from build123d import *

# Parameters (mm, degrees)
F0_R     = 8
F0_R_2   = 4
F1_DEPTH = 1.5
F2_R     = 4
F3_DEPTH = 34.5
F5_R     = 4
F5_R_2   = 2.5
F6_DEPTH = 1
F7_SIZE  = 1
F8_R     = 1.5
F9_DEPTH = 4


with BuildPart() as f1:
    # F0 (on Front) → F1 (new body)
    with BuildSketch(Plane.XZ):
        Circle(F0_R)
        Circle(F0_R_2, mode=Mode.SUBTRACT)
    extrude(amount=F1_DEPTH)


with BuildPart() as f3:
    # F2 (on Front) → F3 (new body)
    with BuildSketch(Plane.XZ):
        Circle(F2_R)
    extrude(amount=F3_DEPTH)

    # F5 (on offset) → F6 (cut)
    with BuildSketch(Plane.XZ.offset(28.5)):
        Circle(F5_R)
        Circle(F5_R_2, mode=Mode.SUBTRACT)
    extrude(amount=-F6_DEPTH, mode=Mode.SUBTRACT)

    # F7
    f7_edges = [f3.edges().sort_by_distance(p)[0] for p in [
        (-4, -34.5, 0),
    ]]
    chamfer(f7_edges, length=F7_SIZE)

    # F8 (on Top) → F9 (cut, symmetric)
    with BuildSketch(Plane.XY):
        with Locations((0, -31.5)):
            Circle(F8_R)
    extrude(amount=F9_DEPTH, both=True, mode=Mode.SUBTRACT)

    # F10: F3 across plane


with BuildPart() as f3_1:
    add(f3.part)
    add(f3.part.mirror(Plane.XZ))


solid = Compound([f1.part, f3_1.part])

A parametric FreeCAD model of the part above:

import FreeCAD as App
import Part
import Sketcher
from FreeCAD import Vector


def edges_at(feature, points):
    """Names of the edges that pass closest to the given points."""
    edges = feature.Shape.Edges
    near = lambda p: min(range(len(edges)), key=lambda i: edges[i].distToShape(Part.Vertex(*p))[0])
    return sorted({f"Edge{near(p) + 1}" for p in points})

doc = App.newDocument("Part")
body = doc.addObject("PartDesign::Body", "Body")

# Sketch on XZ plane
sketch1 = body.newObject("Sketcher::SketchObject", "Sketch")
sketch1.AttachmentSupport = (doc.getObject("XZ_Plane"), [""])
sketch1.MapMode = "FlatFace"
sketch1.addGeometry(Part.Circle(Vector(0, 0, 0), Vector(0, 0, 1), 8), False)
sketch1.addGeometry(Part.Circle(Vector(0, 0, 0), Vector(0, 0, 1), 4), False)
sketch1.addConstraint(Sketcher.Constraint("Coincident", 0, 3, -1, 1))
sketch1.addConstraint(Sketcher.Constraint("Coincident", 1, 3, -1, 1))
sketch1.addConstraint(Sketcher.Constraint("Diameter", 0, 16.0))
sketch1.addConstraint(Sketcher.Constraint("Diameter", 1, 8.0))
pad1 = body.newObject("PartDesign::Pad", "Pad")
pad1.Profile = sketch1
pad1.Length = 1.5
body2 = doc.addObject("PartDesign::Body", "Body001")

# Sketch on XZ plane
sketch2 = body2.newObject("Sketcher::SketchObject", "Sketch001")
sketch2.AttachmentSupport = (doc.getObject("XZ_Plane001"), [""])
sketch2.MapMode = "FlatFace"
sketch2.addGeometry(Part.Circle(Vector(0, 0, 0), Vector(0, 0, 1), 4), False)
sketch2.addConstraint(Sketcher.Constraint("Coincident", 0, 3, -1, 1))
sketch2.addConstraint(Sketcher.Constraint("Diameter", 0, 8.0))
pad2 = body2.newObject("PartDesign::Pad", "Pad001")
pad2.Profile = sketch2
pad2.Length = 34.5

# Sketch on XZ plane
sketch3 = body2.newObject("Sketcher::SketchObject", "Sketch002")
sketch3.AttachmentSupport = (doc.getObject("XZ_Plane001"), [""])
sketch3.MapMode = "FlatFace"
sketch3.AttachmentOffset = App.Placement(Vector(0, 0, 28.5), App.Rotation())
sketch3.addGeometry(Part.Circle(Vector(0, 0, 0), Vector(0, 0, 1), 4), False)
sketch3.addGeometry(Part.Circle(Vector(0, 0, 0), Vector(0, 0, 1), 2.5), False)
sketch3.addConstraint(Sketcher.Constraint("Coincident", 0, 3, -1, 1))
sketch3.addConstraint(Sketcher.Constraint("Coincident", 1, 3, -1, 1))
sketch3.addConstraint(Sketcher.Constraint("Diameter", 0, 8.0))
sketch3.addConstraint(Sketcher.Constraint("Diameter", 1, 5.0))
pocket1 = body2.newObject("PartDesign::Pocket", "Pocket")
pocket1.Profile = sketch3
pocket1.Length = 1
doc.recompute()

chamfer = body2.newObject("PartDesign::Chamfer", "Chamfer")
chamfer.Base = (pocket1, edges_at(pocket1, [(-4, -34.5, 0)]))
chamfer.Size = 1

# Sketch on XY plane
sketch4 = body2.newObject("Sketcher::SketchObject", "Sketch003")
sketch4.AttachmentSupport = (doc.getObject("XY_Plane001"), [""])
sketch4.MapMode = "FlatFace"
sketch4.addGeometry(Part.Circle(Vector(0, -31.5, 0), Vector(0, 0, 1), 1.5), False)
sketch4.addConstraint(Sketcher.Constraint("PointOnObject", 0, 3, -2))
sketch4.addConstraint(Sketcher.Constraint("Diameter", 0, 3.0))
sketch4.addConstraint(Sketcher.Constraint("DistanceY", 0, 3, -1, 1, 31.5))
pocket2 = body2.newObject("PartDesign::Pocket", "Pocket001")
pocket2.Profile = sketch4
pocket2.Length = 8
pocket2.Midplane = True
body3 = doc.addObject("PartDesign::Body", "Body002")
doc.recompute()

body3.BaseFeature = body2
doc.recompute()

mirroring = doc.addObject("Part::Mirroring", "Mirroring")
mirroring.Source = body2
mirroring.Base = Vector(0, 0, 0)
mirroring.Normal = Vector(0, -1, 0)
body4 = doc.addObject("PartDesign::Body", "Body003")
body4.BaseFeature = mirroring
boolean = body3.newObject("PartDesign::Boolean", "Boolean")
boolean.Type = "Fuse"
boolean.addObjects([body4])
doc.recompute()
mirroring.Visibility = False

doc.recompute()
